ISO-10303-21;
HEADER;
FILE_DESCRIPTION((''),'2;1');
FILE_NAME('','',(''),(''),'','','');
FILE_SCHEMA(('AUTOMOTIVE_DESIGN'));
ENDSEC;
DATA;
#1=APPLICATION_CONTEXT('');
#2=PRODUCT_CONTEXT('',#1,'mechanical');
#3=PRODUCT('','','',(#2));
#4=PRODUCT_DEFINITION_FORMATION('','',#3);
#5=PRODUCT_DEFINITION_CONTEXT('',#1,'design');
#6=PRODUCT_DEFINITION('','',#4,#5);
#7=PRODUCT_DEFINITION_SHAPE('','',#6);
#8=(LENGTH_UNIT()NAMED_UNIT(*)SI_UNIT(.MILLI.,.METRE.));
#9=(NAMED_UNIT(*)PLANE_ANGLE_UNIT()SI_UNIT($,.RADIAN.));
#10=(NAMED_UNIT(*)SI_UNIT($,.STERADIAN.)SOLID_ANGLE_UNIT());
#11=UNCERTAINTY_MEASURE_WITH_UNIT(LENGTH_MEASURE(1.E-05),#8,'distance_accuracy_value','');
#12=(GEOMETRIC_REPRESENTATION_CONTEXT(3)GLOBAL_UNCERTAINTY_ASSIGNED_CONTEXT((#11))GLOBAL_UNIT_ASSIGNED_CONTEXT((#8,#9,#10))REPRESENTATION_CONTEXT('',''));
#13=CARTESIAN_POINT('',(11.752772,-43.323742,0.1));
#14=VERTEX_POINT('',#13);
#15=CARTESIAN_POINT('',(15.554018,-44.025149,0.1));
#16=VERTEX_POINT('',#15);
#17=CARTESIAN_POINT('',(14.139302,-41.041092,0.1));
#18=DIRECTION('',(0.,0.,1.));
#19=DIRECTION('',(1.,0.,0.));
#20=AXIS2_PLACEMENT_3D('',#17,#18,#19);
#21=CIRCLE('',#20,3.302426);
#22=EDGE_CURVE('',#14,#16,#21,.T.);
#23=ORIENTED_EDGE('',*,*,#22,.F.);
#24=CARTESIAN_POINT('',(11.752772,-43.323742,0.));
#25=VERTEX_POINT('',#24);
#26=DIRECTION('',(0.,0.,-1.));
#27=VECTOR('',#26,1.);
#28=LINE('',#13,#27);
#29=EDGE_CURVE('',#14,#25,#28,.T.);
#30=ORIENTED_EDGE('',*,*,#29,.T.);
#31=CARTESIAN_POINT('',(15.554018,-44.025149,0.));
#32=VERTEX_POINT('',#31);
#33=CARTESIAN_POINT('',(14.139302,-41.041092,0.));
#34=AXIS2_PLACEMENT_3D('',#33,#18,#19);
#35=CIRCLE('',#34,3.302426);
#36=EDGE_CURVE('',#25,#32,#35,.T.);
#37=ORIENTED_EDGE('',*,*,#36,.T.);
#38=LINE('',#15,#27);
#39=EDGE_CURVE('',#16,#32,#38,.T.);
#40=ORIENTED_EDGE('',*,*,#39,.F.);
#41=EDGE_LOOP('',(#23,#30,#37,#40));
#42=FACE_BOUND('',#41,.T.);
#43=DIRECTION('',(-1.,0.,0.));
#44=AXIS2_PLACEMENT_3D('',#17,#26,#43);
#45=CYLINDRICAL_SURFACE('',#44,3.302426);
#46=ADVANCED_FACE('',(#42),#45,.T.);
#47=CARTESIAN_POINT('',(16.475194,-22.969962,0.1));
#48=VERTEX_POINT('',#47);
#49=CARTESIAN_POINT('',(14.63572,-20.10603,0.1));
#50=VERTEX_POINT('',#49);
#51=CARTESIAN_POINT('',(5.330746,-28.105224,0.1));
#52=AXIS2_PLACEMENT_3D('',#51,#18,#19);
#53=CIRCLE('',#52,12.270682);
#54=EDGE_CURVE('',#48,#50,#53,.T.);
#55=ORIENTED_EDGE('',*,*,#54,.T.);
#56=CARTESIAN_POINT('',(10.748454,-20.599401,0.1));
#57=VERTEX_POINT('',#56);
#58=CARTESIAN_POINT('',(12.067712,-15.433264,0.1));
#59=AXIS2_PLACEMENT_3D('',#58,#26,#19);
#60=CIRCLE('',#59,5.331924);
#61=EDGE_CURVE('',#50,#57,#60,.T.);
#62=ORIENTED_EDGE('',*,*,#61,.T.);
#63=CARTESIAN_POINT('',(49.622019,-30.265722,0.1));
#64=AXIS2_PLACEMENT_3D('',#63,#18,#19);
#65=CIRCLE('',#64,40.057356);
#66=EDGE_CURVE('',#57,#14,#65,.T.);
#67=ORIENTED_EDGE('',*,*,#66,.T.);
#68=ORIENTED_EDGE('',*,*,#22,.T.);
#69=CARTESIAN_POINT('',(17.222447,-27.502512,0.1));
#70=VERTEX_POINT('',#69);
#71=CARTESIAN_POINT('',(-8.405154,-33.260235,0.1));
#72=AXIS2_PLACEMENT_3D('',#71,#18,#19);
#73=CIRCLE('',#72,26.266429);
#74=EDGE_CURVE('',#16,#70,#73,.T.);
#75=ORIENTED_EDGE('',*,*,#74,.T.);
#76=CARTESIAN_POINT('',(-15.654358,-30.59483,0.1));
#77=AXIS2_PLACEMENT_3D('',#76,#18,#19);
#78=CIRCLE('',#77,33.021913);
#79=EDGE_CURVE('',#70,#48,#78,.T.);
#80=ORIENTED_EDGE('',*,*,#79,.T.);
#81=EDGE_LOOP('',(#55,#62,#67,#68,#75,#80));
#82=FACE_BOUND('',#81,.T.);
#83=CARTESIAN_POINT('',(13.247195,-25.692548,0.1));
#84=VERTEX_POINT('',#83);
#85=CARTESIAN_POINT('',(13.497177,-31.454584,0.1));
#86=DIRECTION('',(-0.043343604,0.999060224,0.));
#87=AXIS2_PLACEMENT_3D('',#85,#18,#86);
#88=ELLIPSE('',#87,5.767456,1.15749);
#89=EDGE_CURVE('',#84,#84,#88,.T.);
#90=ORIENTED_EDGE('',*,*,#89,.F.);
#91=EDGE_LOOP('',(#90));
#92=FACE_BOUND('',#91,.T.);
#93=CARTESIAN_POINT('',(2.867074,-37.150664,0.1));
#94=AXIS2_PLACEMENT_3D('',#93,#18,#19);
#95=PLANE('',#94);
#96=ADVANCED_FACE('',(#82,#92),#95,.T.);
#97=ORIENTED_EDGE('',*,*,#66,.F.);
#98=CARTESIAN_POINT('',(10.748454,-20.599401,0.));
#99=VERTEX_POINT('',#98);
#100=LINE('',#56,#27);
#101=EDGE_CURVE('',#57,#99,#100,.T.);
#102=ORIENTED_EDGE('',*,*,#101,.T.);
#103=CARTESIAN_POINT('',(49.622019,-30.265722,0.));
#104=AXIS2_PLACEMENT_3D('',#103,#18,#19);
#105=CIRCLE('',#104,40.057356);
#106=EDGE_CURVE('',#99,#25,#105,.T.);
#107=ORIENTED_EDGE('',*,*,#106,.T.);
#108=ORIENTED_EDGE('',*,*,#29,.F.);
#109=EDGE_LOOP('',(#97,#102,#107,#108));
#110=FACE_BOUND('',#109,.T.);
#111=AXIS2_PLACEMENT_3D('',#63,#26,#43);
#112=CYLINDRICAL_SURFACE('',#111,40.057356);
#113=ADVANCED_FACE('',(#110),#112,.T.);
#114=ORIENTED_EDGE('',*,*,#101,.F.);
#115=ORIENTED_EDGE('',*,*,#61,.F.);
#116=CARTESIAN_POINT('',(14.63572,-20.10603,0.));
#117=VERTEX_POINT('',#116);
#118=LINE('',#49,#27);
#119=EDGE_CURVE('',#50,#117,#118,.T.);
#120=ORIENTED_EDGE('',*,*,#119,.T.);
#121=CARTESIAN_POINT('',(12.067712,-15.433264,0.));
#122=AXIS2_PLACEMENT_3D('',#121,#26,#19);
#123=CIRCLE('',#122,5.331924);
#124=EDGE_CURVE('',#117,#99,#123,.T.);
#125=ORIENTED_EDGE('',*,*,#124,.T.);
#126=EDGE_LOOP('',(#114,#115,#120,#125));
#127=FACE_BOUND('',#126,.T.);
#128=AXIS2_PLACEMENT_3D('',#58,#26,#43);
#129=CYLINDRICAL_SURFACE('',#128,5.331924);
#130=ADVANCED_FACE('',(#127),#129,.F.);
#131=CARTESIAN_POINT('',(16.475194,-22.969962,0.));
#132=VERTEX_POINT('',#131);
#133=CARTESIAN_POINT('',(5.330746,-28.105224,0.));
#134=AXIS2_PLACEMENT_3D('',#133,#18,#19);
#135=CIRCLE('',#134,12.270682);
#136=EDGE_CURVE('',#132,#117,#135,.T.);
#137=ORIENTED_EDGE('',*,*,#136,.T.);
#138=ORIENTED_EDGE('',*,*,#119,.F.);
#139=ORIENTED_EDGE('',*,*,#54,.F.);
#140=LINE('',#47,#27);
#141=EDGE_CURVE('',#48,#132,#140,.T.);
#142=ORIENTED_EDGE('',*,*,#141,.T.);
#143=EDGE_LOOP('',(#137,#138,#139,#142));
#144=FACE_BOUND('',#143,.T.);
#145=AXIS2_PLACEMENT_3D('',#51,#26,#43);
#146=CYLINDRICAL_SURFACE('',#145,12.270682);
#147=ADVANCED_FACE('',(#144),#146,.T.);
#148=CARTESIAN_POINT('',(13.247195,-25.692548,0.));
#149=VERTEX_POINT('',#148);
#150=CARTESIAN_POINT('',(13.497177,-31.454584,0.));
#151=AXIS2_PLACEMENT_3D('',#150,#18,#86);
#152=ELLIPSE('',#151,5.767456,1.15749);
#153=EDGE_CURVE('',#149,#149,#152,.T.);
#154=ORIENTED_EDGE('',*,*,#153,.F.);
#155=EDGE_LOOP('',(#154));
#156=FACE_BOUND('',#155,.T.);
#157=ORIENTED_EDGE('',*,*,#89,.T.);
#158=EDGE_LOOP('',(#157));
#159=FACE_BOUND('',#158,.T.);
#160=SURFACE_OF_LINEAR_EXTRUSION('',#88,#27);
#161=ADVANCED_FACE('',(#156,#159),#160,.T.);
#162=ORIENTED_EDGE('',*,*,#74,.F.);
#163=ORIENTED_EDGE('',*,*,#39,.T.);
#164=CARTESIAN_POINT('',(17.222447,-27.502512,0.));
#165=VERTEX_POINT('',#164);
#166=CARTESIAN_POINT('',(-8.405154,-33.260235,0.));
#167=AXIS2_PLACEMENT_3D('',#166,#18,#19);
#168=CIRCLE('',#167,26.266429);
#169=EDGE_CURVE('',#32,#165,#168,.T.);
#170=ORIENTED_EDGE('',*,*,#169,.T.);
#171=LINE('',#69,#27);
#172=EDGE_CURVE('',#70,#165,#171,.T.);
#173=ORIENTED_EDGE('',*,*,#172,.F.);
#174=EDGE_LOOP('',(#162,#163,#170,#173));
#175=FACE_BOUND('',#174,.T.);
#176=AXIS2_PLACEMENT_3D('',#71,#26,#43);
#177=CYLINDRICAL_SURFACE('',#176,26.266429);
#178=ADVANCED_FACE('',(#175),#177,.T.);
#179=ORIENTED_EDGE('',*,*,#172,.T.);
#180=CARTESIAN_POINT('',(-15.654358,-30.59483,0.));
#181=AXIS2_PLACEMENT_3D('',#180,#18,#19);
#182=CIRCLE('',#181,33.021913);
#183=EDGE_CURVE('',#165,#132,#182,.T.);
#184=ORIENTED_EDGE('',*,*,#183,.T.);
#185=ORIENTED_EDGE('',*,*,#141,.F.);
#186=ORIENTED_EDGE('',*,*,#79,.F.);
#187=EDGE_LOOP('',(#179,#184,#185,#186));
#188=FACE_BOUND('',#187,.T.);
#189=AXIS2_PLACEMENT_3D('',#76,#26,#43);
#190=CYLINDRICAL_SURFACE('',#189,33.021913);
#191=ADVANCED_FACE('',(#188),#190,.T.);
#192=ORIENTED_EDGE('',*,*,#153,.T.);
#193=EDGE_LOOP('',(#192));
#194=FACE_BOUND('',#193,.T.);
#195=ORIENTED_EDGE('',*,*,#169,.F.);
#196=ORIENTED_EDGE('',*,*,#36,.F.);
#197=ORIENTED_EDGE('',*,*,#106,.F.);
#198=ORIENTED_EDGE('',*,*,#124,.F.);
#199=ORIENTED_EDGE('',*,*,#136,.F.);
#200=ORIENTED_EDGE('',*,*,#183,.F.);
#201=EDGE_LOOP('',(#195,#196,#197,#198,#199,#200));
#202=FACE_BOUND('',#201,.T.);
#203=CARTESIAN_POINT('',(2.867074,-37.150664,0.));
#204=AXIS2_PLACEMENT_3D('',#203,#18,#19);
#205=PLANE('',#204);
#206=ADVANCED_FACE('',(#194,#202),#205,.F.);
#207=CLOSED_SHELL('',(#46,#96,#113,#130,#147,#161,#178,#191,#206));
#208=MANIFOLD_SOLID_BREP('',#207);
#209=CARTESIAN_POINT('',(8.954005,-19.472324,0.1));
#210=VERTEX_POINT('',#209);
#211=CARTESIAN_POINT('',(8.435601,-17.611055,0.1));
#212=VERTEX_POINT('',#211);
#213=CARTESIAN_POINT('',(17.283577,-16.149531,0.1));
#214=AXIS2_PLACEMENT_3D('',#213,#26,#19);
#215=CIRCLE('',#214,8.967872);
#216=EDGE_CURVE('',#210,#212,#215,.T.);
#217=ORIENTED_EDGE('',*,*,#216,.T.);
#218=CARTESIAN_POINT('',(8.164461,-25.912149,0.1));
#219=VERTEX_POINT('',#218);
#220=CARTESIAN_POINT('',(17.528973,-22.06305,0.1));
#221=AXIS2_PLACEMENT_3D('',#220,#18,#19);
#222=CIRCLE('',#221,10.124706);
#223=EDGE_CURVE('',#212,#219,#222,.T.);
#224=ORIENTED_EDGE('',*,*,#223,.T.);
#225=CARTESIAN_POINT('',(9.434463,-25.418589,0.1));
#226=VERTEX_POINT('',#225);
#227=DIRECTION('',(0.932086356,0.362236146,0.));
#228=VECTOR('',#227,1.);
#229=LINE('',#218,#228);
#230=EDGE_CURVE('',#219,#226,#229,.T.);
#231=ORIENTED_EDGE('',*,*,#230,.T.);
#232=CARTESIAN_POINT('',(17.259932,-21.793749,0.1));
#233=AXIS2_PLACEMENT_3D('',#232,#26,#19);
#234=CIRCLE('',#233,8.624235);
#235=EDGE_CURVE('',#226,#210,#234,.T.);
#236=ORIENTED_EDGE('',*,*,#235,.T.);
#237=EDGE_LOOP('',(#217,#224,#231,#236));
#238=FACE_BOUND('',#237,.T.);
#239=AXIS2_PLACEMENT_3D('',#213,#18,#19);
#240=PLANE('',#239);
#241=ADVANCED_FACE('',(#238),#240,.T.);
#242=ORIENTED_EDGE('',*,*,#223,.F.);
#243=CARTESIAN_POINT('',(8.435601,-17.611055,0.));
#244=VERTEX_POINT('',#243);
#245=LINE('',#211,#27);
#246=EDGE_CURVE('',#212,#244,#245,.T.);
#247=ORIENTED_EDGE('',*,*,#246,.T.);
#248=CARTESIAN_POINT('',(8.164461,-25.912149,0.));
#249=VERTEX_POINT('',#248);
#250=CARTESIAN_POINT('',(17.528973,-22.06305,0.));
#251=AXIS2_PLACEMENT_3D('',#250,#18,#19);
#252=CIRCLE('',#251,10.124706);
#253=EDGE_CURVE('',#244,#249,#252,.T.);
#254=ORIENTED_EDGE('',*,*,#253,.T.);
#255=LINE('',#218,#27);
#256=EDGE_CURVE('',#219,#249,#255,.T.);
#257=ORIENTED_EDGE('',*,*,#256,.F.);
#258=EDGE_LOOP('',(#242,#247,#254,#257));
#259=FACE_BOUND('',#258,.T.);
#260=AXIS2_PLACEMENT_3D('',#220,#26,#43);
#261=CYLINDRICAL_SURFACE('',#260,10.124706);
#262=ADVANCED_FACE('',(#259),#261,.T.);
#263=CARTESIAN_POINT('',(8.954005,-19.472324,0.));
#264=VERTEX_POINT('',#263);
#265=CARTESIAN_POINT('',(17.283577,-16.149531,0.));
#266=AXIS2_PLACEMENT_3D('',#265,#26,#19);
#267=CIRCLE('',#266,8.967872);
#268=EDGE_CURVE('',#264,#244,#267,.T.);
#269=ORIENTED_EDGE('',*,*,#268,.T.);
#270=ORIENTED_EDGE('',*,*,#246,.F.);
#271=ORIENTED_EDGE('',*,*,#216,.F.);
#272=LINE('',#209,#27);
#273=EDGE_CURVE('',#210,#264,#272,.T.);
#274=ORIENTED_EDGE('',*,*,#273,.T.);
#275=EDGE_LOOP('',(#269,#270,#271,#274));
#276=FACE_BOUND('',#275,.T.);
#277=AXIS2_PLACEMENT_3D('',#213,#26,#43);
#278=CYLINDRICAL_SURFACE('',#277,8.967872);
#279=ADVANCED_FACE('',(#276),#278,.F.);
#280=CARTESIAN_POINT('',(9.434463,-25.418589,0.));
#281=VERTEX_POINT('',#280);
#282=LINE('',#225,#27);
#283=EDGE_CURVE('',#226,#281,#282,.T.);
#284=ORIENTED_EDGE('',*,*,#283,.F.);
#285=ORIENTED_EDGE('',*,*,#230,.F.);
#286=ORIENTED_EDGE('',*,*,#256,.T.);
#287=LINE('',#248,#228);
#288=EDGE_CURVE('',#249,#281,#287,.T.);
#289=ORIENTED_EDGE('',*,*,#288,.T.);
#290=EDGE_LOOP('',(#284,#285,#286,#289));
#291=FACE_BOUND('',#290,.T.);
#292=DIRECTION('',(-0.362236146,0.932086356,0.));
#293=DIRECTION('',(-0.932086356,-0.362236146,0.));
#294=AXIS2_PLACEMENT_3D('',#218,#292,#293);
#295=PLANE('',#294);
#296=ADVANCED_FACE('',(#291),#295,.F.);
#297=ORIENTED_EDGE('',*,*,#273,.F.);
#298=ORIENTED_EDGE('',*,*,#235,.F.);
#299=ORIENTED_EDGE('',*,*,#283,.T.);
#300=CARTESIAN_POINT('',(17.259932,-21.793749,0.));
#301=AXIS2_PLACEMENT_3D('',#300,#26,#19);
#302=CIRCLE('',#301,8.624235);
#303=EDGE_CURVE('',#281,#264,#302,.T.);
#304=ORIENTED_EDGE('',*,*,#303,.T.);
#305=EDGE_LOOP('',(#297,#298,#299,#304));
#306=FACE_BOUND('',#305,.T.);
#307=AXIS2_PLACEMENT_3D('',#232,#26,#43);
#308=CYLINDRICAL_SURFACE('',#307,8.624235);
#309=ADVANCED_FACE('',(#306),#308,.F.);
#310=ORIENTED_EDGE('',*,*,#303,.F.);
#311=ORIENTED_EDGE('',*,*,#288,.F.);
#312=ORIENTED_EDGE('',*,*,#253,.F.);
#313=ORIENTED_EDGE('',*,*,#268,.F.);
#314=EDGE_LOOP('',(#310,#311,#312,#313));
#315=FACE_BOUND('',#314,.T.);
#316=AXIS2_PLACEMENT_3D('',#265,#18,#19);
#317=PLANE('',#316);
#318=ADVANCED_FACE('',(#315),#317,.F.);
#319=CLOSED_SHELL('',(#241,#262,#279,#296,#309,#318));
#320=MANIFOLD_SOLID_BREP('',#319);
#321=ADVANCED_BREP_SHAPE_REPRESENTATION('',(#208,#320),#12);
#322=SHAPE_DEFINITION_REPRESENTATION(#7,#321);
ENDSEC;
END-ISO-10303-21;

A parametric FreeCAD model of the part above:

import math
import FreeCAD as App
import Part
import Sketcher

V = App.Vector

doc = App.newDocument("Part")
body = doc.addObject("PartDesign::Body", "Body")

# Sketch on XY plane
sketch1 = doc.addObject("Sketcher::SketchObject", "Sketch")
body.addObject(sketch1)
sketch1.AttachmentSupport = (doc.XY_Plane, [""])
sketch1.MapMode = "FlatFace"
sketch1.addGeometry(Part.LineSegment(V(8.164461, -25.912149, 0), V(9.434463, -25.418589, 0)), False)
sketch1.addGeometry(Part.ArcOfCircle(Part.Circle(V(17.259932, -21.793749, 0), V(0, 0, 1), 8.624235), math.radians(164.38485), math.radians(204.854075)), False)
sketch1.addGeometry(Part.ArcOfCircle(Part.Circle(V(17.283577, -16.149531, 0), V(0, 0, 1), 8.967872), math.radians(-170.620478), math.radians(-158.252188)), False)
sketch1.addGeometry(Part.ArcOfCircle(Part.Circle(V(17.528973, -22.06305, 0), V(0, 0, 1), 10.124706), math.radians(153.914241), math.radians(202.344155)), False)
sketch1.addConstraint(Sketcher.Constraint("Coincident", 0, 2, 1, 2))
sketch1.addConstraint(Sketcher.Constraint("Coincident", 1, 1, 2, 2))
sketch1.addConstraint(Sketcher.Constraint("Coincident", 2, 1, 3, 1))
sketch1.addConstraint(Sketcher.Constraint("Coincident", 3, 2, 0, 1))
sketch1.addConstraint(Sketcher.Constraint("Radius", 1, 8.624235))
sketch1.addConstraint(Sketcher.Constraint("Radius", 2, 8.967872))
sketch1.addConstraint(Sketcher.Constraint("Radius", 3, 10.124706))
sketch1.addConstraint(Sketcher.Constraint("DistanceX", -1, 1, 2, 1, 8.435601))
sketch1.addConstraint(Sketcher.Constraint("DistanceY", 3, 3, 1, 3, 0.269301))
sketch1.addConstraint(Sketcher.Constraint("DistanceY", 3, 2, 1, 3, 4.118401))
sketch1.addConstraint(Sketcher.Constraint("DistanceY", 1, 3, -1, 1, 21.793749))
sketch1.addConstraint(Sketcher.Constraint("DistanceY", 2, 3, -1, 1, 16.149531))
sketch1.addConstraint(Sketcher.Constraint("DistanceY", 0, 2, -1, 1, 25.418589))
sketch1.addConstraint(Sketcher.Constraint("DistanceX", -1, 1, 3, 2, 8.164461))
sketch1.addConstraint(Sketcher.Constraint("DistanceX", 1, 3, 3, 3, 0.269041))
pad1 = doc.addObject("PartDesign::Pad", "Pad")
body.addObject(pad1)
pad1.Profile = sketch1
pad1.Length = 0.1
body2 = doc.addObject("PartDesign::Body", "Body001")

# Sketch on XY plane
sketch2 = doc.addObject("Sketcher::SketchObject", "Sketch001")
body2.addObject(sketch2)
sketch2.AttachmentSupport = (doc.getObject("XY_Plane001"), [""])
sketch2.MapMode = "FlatFace"
sketch2.addGeometry(Part.ArcOfCircle(Part.Circle(V(-8.405154, -33.260235, 0), V(0, 0, 1), 26.266429), math.radians(-24.1945), math.radians(12.662322)), False)
sketch2.addGeometry(Part.ArcOfCircle(Part.Circle(V(-15.654358, -30.59483, 0), V(0, 0, 1), 33.021913), math.radians(5.373304), math.radians(13.350258)), False)
sketch2.addGeometry(Part.ArcOfCircle(Part.Circle(V(5.330746, -28.105224, 0), V(0, 0, 1), 12.270682), math.radians(24.739828), math.radians(40.684614)), False)
sketch2.addGeometry(Part.ArcOfCircle(Part.Circle(V(12.067712, -15.433264, 0), V(0, 0, 1), 5.331924), math.radians(-104.325261), math.radians(-61.208162)), False)
sketch2.addGeometry(Part.ArcOfCircle(Part.Circle(V(49.622019, -30.265722, 0), V(0, 0, 1), 40.057356), math.radians(166.036011), math.radians(199.025146)), False)
sketch2.addGeometry(Part.ArcOfCircle(Part.Circle(V(14.139302, -41.041092, 0), V(0, 0, 1), 3.302426), math.radians(-136.274514), math.radians(-64.634765)), False)
sketch2.addGeometry(Part.Ellipse(V(13.247195, -25.692548, 0), V(12.340776, -31.504754, 0), V(13.497177, -31.454584, 0)), False)
sketch2.addConstraint(Sketcher.Constraint("Block", 6))
sketch2.addConstraint(Sketcher.Constraint("Coincident", 0, 2, 1, 1))
sketch2.addConstraint(Sketcher.Constraint("Coincident", 1, 2, 2, 1))
sketch2.addConstraint(Sketcher.Constraint("Coincident", 2, 2, 3, 2))
sketch2.addConstraint(Sketcher.Constraint("Coincident", 3, 1, 4, 1))
sketch2.addConstraint(Sketcher.Constraint("Coincident", 4, 2, 5, 1))
sketch2.addConstraint(Sketcher.Constraint("Coincident", 5, 2, 0, 1))
sketch2.addConstraint(Sketcher.Constraint("Radius", 0, 26.266429))
sketch2.addConstraint(Sketcher.Constraint("Radius", 1, 33.021913))
sketch2.addConstraint(Sketcher.Constraint("Radius", 2, 12.270682))
sketch2.addConstraint(Sketcher.Constraint("Radius", 3, 5.331924))
sketch2.addConstraint(Sketcher.Constraint("Radius", 4, 40.057356))
sketch2.addConstraint(Sketcher.Constraint("Radius", 5, 3.302426))
sketch2.addConstraint(Sketcher.Constraint("DistanceY", 3, 1, -1, 1, 20.599401))
sketch2.addConstraint(Sketcher.Constraint("DistanceX", 0, 3, 2, 3, 13.7359))
sketch2.addConstraint(Sketcher.Constraint("DistanceX", 2, 3, 0, 2, 11.891701))
sketch2.addConstraint(Sketcher.Constraint("DistanceY", 1, 3, -1, 1, 30.59483))
sketch2.addConstraint(Sketcher.Constraint("DistanceX", -1, 1, 3, 3, 12.067712))
sketch2.addConstraint(Sketcher.Constraint("DistanceX", -1, 1, 4, 3, 49.622019))
sketch2.addConstraint(Sketcher.Constraint("DistanceY", 4, 3, -1, 1, 30.265722))
sketch2.addConstraint(Sketcher.Constraint("DistanceY", 0, 2, -1, 1, 27.502512))
sketch2.addConstraint(Sketcher.Constraint("DistanceY", 1, 2, -1, 1, 22.969962))
sketch2.addConstraint(Sketcher.Constraint("DistanceX", -1, 1, 2, 2, 14.63572))
sketch2.addConstraint(Sketcher.Constraint("DistanceX", -1, 1, 4, 2, 11.752772))
sketch2.addConstraint(Sketcher.Constraint("DistanceX", -1, 1, 5, 2, 15.554018))
pad2 = doc.addObject("PartDesign::Pad", "Pad001")
body2.addObject(pad2)
pad2.Profile = sketch2
pad2.Length = 0.1

doc.recompute()
